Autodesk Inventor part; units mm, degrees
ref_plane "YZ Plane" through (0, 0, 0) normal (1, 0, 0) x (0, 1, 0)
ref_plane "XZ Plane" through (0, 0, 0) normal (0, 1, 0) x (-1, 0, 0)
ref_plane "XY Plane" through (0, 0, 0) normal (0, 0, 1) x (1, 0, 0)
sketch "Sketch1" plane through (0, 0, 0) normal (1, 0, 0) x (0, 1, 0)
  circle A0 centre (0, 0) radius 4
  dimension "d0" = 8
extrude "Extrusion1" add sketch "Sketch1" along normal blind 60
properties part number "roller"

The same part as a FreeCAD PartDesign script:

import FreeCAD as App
import Part
import Sketcher

doc = App.newDocument("Part")
params = doc.addObject("Spreadsheet::Sheet", "Params")
for row, (alias, value) in enumerate([
    ("sketch1_diameter", "8 mm"),
    ("pad1_length", "60 mm"),
], start=1):
    params.set(f"A{row}", alias)
    params.set(f"B{row}", "=" + value)
    params.setAlias(f"B{row}", alias)

body = doc.addObject("PartDesign::Body", "Body")

# Sketch on YZ plane
sketch1 = body.newObject("Sketcher::SketchObject", "Sketch")
sketch1.AttachmentSupport = (doc.getObject("YZ_Plane"), [""])
sketch1.MapMode = "FlatFace"
sketch1.addGeometry(Part.Circle(App.Vector(0, 0, 0), App.Vector(0, 0, 1), 4), False)
sketch1.addConstraint([
    Sketcher.Constraint("Coincident", 0, 3, -1, 1),
    Sketcher.Constraint("Diameter", 0, 8.0),
])
sketch1.setExpression("Constraints[1]", "Params.sketch1_diameter")
pad1 = body.newObject("PartDesign::Pad", "Pad")
pad1.Profile = sketch1
pad1.setExpression("Length", "Params.pad1_length")

doc.recompute()
